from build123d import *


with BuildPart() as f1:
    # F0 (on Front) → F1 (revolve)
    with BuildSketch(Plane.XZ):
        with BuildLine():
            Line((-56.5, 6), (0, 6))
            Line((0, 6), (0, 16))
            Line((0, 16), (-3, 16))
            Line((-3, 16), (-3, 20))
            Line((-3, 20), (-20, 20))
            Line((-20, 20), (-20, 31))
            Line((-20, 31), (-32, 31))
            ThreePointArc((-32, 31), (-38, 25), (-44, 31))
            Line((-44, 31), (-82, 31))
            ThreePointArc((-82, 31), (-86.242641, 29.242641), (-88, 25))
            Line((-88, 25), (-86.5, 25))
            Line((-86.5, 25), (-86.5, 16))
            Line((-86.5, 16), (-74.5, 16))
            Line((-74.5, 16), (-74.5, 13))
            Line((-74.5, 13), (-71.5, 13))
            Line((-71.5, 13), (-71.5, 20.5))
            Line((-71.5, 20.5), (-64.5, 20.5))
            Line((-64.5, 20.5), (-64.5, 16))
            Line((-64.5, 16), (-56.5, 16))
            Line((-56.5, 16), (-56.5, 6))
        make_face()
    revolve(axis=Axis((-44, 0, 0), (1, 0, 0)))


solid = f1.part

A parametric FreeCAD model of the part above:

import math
import FreeCAD as App
import Part
import Sketcher

V = App.Vector

doc = App.newDocument("Part")
body = doc.addObject("PartDesign::Body", "Body")

# Sketch on XZ plane
sketch1 = body.newObject("Sketcher::SketchObject", "Sketch")
sketch1.AttachmentSupport = (doc.getObject("XZ_Plane"), [""])
sketch1.MapMode = "FlatFace"
sketch1.addGeometry(Part.LineSegment(V(-56.5, 6, 0), V(0, 6, 0)), False)
sketch1.addGeometry(Part.LineSegment(V(0, 6, 0), V(0, 16, 0)), False)
sketch1.addGeometry(Part.LineSegment(V(0, 16, 0), V(-3, 16, 0)), False)
sketch1.addGeometry(Part.LineSegment(V(-3, 16, 0), V(-3, 20, 0)), False)
sketch1.addGeometry(Part.LineSegment(V(-3, 20, 0), V(-20, 20, 0)), False)
sketch1.addGeometry(Part.LineSegment(V(-20, 20, 0), V(-20, 31, 0)), False)
sketch1.addGeometry(Part.LineSegment(V(-20, 31, 0), V(-32, 31, 0)), False)
sketch1.addGeometry(Part.ArcOfCircle(Part.Circle(V(-38, 31, 0), V(0, 0, 1), 6), math.radians(180), math.radians(360)), False)
sketch1.addGeometry(Part.LineSegment(V(-44, 31, 0), V(-82, 31, 0)), False)
sketch1.addGeometry(Part.ArcOfCircle(Part.Circle(V(-82, 25, 0), V(0, 0, 1), 6), math.radians(90), math.radians(180)), False)
sketch1.addGeometry(Part.LineSegment(V(-88, 25, 0), V(-86.5, 25, 0)), False)
sketch1.addGeometry(Part.LineSegment(V(-86.5, 25, 0), V(-86.5, 16, 0)), False)
sketch1.addGeometry(Part.LineSegment(V(-86.5, 16, 0), V(-74.5, 16, 0)), False)
sketch1.addGeometry(Part.LineSegment(V(-74.5, 16, 0), V(-74.5, 13, 0)), False)
sketch1.addGeometry(Part.LineSegment(V(-74.5, 13, 0), V(-71.5, 13, 0)), False)
sketch1.addGeometry(Part.LineSegment(V(-71.5, 13, 0), V(-71.5, 20.5, 0)), False)
sketch1.addGeometry(Part.LineSegment(V(-71.5, 20.5, 0), V(-64.5, 20.5, 0)), False)
sketch1.addGeometry(Part.LineSegment(V(-64.5, 20.5, 0), V(-64.5, 16, 0)), False)
sketch1.addGeometry(Part.LineSegment(V(-64.5, 16, 0), V(-56.5, 16, 0)), False)
sketch1.addGeometry(Part.LineSegment(V(-56.5, 16, 0), V(-56.5, 6, 0)), False)
sketch1.addConstraint(Sketcher.Constraint("Coincident", 0, 2, 1, 1))
sketch1.addConstraint(Sketcher.Constraint("Coincident", 1, 2, 2, 1))
sketch1.addConstraint(Sketcher.Constraint("Coincident", 2, 2, 3, 1))
sketch1.addConstraint(Sketcher.Constraint("Coincident", 3, 2, 4, 1))
sketch1.addConstraint(Sketcher.Constraint("Coincident", 4, 2, 5, 1))
sketch1.addConstraint(Sketcher.Constraint("Coincident", 5, 2, 6, 1))
sketch1.addConstraint(Sketcher.Constraint("Coincident", 6, 2, 7, 2))
sketch1.addConstraint(Sketcher.Constraint("Coincident", 7, 1, 8, 1))
sketch1.addConstraint(Sketcher.Constraint("Tangent", 8, 2, 9, 1))
sketch1.addConstraint(Sketcher.Constraint("Coincident", 9, 2, 10, 1))
sketch1.addConstraint(Sketcher.Constraint("Coincident", 10, 2, 11, 1))
sketch1.addConstraint(Sketcher.Constraint("Coincident", 11, 2, 12, 1))
sketch1.addConstraint(Sketcher.Constraint("Coincident", 12, 2, 13, 1))
sketch1.addConstraint(Sketcher.Constraint("Coincident", 13, 2, 14, 1))
sketch1.addConstraint(Sketcher.Constraint("Coincident", 14, 2, 15, 1))
sketch1.addConstraint(Sketcher.Constraint("Coincident", 15, 2, 16, 1))
sketch1.addConstraint(Sketcher.Constraint("Coincident", 16, 2, 17, 1))
sketch1.addConstraint(Sketcher.Constraint("Coincident", 17, 2, 18, 1))
sketch1.addConstraint(Sketcher.Constraint("Coincident", 18, 2, 19, 1))
sketch1.addConstraint(Sketcher.Constraint("Coincident", 19, 2, 0, 1))
sketch1.addConstraint(Sketcher.Constraint("Horizontal", 0))
sketch1.addConstraint(Sketcher.Constraint("Vertical", 1))
sketch1.addConstraint(Sketcher.Constraint("Horizontal", 2))
sketch1.addConstraint(Sketcher.Constraint("Vertical", 3))
sketch1.addConstraint(Sketcher.Constraint("Horizontal", 4))
sketch1.addConstraint(Sketcher.Constraint("Vertical", 5))
sketch1.addConstraint(Sketcher.Constraint("Horizontal", 6))
sketch1.addConstraint(Sketcher.Constraint("Horizontal", 8))
sketch1.addConstraint(Sketcher.Constraint("Horizontal", 10))
sketch1.addConstraint(Sketcher.Constraint("Vertical", 11))
sketch1.addConstraint(Sketcher.Constraint("Horizontal", 12))
sketch1.addConstraint(Sketcher.Constraint("Vertical", 13))
sketch1.addConstraint(Sketcher.Constraint("Horizontal", 14))
sketch1.addConstraint(Sketcher.Constraint("Vertical", 15))
sketch1.addConstraint(Sketcher.Constraint("Horizontal", 16))
sketch1.addConstraint(Sketcher.Constraint("Vertical", 17))
sketch1.addConstraint(Sketcher.Constraint("Horizontal", 18))
sketch1.addConstraint(Sketcher.Constraint("Vertical", 19))
sketch1.addConstraint(Sketcher.Constraint("Equal", 7, 9))
sketch1.addConstraint(Sketcher.Constraint("PointOnObject", 0, 2, -2))
sketch1.addConstraint(Sketcher.Constraint("Horizontal", 7, 3, 5, 2))
sketch1.addConstraint(Sketcher.Constraint("Horizontal", 6, 2, 7, 1))
sketch1.addConstraint(Sketcher.Constraint("Horizontal", 2, 2, 11, 2))
sketch1.addConstraint(Sketcher.Constraint("Horizontal", 12, 2, 17, 2))
sketch1.addConstraint(Sketcher.Constraint("Equal", 6, 12))
sketch1.addConstraint(Sketcher.Constraint("Equal", 2, 14))
sketch1.addConstraint(Sketcher.Constraint("Equal", 14, 13))
sketch1.addConstraint(Sketcher.Constraint("Radius", 7, 6.0))
sketch1.addConstraint(Sketcher.Constraint("DistanceX", 2, 2, 2, 1, 3.0))
sketch1.addConstraint(Sketcher.Constraint("DistanceX", 4, 2, 4, 1, 17.0))
sketch1.addConstraint(Sketcher.Constraint("DistanceX", 6, 2, 6, 1, 12.0))
sketch1.addConstraint(Sketcher.Constraint("DistanceX", 8, 2, 8, 1, 38.0))
sketch1.addConstraint(Sketcher.Constraint("DistanceX", 16, 1, 16, 2, 7.0))
sketch1.addConstraint(Sketcher.Constraint("DistanceX", 18, 1, 18, 2, 8.0))
sketch1.addConstraint(Sketcher.Constraint("DistanceY", 1, 1, 1, 2, 10.0))
sketch1.addConstraint(Sketcher.Constraint("DistanceY", 3, 1, 3, 2, 4.0))
sketch1.addConstraint(Sketcher.Constraint("DistanceY", 5, 1, 5, 2, 11.0))
sketch1.addConstraint(Sketcher.Constraint("DistanceY", 11, 2, 11, 1, 9.0))
sketch1.addConstraint(Sketcher.Constraint("DistanceX", 0, 1, 0, 2, 56.5))
sketch1.addConstraint(Sketcher.Constraint("DistanceY", 15, 1, 15, 2, 7.5))
sketch1.addConstraint(Sketcher.Constraint("DistanceY", -1, 1, 7, 3, 31.0))
revolution = body.newObject("PartDesign::Revolution", "Revolution")
revolution.Profile = sketch1
revolution.ReferenceAxis = (sketch1, ["H_Axis"])
revolution.Angle = 360

doc.recompute()
